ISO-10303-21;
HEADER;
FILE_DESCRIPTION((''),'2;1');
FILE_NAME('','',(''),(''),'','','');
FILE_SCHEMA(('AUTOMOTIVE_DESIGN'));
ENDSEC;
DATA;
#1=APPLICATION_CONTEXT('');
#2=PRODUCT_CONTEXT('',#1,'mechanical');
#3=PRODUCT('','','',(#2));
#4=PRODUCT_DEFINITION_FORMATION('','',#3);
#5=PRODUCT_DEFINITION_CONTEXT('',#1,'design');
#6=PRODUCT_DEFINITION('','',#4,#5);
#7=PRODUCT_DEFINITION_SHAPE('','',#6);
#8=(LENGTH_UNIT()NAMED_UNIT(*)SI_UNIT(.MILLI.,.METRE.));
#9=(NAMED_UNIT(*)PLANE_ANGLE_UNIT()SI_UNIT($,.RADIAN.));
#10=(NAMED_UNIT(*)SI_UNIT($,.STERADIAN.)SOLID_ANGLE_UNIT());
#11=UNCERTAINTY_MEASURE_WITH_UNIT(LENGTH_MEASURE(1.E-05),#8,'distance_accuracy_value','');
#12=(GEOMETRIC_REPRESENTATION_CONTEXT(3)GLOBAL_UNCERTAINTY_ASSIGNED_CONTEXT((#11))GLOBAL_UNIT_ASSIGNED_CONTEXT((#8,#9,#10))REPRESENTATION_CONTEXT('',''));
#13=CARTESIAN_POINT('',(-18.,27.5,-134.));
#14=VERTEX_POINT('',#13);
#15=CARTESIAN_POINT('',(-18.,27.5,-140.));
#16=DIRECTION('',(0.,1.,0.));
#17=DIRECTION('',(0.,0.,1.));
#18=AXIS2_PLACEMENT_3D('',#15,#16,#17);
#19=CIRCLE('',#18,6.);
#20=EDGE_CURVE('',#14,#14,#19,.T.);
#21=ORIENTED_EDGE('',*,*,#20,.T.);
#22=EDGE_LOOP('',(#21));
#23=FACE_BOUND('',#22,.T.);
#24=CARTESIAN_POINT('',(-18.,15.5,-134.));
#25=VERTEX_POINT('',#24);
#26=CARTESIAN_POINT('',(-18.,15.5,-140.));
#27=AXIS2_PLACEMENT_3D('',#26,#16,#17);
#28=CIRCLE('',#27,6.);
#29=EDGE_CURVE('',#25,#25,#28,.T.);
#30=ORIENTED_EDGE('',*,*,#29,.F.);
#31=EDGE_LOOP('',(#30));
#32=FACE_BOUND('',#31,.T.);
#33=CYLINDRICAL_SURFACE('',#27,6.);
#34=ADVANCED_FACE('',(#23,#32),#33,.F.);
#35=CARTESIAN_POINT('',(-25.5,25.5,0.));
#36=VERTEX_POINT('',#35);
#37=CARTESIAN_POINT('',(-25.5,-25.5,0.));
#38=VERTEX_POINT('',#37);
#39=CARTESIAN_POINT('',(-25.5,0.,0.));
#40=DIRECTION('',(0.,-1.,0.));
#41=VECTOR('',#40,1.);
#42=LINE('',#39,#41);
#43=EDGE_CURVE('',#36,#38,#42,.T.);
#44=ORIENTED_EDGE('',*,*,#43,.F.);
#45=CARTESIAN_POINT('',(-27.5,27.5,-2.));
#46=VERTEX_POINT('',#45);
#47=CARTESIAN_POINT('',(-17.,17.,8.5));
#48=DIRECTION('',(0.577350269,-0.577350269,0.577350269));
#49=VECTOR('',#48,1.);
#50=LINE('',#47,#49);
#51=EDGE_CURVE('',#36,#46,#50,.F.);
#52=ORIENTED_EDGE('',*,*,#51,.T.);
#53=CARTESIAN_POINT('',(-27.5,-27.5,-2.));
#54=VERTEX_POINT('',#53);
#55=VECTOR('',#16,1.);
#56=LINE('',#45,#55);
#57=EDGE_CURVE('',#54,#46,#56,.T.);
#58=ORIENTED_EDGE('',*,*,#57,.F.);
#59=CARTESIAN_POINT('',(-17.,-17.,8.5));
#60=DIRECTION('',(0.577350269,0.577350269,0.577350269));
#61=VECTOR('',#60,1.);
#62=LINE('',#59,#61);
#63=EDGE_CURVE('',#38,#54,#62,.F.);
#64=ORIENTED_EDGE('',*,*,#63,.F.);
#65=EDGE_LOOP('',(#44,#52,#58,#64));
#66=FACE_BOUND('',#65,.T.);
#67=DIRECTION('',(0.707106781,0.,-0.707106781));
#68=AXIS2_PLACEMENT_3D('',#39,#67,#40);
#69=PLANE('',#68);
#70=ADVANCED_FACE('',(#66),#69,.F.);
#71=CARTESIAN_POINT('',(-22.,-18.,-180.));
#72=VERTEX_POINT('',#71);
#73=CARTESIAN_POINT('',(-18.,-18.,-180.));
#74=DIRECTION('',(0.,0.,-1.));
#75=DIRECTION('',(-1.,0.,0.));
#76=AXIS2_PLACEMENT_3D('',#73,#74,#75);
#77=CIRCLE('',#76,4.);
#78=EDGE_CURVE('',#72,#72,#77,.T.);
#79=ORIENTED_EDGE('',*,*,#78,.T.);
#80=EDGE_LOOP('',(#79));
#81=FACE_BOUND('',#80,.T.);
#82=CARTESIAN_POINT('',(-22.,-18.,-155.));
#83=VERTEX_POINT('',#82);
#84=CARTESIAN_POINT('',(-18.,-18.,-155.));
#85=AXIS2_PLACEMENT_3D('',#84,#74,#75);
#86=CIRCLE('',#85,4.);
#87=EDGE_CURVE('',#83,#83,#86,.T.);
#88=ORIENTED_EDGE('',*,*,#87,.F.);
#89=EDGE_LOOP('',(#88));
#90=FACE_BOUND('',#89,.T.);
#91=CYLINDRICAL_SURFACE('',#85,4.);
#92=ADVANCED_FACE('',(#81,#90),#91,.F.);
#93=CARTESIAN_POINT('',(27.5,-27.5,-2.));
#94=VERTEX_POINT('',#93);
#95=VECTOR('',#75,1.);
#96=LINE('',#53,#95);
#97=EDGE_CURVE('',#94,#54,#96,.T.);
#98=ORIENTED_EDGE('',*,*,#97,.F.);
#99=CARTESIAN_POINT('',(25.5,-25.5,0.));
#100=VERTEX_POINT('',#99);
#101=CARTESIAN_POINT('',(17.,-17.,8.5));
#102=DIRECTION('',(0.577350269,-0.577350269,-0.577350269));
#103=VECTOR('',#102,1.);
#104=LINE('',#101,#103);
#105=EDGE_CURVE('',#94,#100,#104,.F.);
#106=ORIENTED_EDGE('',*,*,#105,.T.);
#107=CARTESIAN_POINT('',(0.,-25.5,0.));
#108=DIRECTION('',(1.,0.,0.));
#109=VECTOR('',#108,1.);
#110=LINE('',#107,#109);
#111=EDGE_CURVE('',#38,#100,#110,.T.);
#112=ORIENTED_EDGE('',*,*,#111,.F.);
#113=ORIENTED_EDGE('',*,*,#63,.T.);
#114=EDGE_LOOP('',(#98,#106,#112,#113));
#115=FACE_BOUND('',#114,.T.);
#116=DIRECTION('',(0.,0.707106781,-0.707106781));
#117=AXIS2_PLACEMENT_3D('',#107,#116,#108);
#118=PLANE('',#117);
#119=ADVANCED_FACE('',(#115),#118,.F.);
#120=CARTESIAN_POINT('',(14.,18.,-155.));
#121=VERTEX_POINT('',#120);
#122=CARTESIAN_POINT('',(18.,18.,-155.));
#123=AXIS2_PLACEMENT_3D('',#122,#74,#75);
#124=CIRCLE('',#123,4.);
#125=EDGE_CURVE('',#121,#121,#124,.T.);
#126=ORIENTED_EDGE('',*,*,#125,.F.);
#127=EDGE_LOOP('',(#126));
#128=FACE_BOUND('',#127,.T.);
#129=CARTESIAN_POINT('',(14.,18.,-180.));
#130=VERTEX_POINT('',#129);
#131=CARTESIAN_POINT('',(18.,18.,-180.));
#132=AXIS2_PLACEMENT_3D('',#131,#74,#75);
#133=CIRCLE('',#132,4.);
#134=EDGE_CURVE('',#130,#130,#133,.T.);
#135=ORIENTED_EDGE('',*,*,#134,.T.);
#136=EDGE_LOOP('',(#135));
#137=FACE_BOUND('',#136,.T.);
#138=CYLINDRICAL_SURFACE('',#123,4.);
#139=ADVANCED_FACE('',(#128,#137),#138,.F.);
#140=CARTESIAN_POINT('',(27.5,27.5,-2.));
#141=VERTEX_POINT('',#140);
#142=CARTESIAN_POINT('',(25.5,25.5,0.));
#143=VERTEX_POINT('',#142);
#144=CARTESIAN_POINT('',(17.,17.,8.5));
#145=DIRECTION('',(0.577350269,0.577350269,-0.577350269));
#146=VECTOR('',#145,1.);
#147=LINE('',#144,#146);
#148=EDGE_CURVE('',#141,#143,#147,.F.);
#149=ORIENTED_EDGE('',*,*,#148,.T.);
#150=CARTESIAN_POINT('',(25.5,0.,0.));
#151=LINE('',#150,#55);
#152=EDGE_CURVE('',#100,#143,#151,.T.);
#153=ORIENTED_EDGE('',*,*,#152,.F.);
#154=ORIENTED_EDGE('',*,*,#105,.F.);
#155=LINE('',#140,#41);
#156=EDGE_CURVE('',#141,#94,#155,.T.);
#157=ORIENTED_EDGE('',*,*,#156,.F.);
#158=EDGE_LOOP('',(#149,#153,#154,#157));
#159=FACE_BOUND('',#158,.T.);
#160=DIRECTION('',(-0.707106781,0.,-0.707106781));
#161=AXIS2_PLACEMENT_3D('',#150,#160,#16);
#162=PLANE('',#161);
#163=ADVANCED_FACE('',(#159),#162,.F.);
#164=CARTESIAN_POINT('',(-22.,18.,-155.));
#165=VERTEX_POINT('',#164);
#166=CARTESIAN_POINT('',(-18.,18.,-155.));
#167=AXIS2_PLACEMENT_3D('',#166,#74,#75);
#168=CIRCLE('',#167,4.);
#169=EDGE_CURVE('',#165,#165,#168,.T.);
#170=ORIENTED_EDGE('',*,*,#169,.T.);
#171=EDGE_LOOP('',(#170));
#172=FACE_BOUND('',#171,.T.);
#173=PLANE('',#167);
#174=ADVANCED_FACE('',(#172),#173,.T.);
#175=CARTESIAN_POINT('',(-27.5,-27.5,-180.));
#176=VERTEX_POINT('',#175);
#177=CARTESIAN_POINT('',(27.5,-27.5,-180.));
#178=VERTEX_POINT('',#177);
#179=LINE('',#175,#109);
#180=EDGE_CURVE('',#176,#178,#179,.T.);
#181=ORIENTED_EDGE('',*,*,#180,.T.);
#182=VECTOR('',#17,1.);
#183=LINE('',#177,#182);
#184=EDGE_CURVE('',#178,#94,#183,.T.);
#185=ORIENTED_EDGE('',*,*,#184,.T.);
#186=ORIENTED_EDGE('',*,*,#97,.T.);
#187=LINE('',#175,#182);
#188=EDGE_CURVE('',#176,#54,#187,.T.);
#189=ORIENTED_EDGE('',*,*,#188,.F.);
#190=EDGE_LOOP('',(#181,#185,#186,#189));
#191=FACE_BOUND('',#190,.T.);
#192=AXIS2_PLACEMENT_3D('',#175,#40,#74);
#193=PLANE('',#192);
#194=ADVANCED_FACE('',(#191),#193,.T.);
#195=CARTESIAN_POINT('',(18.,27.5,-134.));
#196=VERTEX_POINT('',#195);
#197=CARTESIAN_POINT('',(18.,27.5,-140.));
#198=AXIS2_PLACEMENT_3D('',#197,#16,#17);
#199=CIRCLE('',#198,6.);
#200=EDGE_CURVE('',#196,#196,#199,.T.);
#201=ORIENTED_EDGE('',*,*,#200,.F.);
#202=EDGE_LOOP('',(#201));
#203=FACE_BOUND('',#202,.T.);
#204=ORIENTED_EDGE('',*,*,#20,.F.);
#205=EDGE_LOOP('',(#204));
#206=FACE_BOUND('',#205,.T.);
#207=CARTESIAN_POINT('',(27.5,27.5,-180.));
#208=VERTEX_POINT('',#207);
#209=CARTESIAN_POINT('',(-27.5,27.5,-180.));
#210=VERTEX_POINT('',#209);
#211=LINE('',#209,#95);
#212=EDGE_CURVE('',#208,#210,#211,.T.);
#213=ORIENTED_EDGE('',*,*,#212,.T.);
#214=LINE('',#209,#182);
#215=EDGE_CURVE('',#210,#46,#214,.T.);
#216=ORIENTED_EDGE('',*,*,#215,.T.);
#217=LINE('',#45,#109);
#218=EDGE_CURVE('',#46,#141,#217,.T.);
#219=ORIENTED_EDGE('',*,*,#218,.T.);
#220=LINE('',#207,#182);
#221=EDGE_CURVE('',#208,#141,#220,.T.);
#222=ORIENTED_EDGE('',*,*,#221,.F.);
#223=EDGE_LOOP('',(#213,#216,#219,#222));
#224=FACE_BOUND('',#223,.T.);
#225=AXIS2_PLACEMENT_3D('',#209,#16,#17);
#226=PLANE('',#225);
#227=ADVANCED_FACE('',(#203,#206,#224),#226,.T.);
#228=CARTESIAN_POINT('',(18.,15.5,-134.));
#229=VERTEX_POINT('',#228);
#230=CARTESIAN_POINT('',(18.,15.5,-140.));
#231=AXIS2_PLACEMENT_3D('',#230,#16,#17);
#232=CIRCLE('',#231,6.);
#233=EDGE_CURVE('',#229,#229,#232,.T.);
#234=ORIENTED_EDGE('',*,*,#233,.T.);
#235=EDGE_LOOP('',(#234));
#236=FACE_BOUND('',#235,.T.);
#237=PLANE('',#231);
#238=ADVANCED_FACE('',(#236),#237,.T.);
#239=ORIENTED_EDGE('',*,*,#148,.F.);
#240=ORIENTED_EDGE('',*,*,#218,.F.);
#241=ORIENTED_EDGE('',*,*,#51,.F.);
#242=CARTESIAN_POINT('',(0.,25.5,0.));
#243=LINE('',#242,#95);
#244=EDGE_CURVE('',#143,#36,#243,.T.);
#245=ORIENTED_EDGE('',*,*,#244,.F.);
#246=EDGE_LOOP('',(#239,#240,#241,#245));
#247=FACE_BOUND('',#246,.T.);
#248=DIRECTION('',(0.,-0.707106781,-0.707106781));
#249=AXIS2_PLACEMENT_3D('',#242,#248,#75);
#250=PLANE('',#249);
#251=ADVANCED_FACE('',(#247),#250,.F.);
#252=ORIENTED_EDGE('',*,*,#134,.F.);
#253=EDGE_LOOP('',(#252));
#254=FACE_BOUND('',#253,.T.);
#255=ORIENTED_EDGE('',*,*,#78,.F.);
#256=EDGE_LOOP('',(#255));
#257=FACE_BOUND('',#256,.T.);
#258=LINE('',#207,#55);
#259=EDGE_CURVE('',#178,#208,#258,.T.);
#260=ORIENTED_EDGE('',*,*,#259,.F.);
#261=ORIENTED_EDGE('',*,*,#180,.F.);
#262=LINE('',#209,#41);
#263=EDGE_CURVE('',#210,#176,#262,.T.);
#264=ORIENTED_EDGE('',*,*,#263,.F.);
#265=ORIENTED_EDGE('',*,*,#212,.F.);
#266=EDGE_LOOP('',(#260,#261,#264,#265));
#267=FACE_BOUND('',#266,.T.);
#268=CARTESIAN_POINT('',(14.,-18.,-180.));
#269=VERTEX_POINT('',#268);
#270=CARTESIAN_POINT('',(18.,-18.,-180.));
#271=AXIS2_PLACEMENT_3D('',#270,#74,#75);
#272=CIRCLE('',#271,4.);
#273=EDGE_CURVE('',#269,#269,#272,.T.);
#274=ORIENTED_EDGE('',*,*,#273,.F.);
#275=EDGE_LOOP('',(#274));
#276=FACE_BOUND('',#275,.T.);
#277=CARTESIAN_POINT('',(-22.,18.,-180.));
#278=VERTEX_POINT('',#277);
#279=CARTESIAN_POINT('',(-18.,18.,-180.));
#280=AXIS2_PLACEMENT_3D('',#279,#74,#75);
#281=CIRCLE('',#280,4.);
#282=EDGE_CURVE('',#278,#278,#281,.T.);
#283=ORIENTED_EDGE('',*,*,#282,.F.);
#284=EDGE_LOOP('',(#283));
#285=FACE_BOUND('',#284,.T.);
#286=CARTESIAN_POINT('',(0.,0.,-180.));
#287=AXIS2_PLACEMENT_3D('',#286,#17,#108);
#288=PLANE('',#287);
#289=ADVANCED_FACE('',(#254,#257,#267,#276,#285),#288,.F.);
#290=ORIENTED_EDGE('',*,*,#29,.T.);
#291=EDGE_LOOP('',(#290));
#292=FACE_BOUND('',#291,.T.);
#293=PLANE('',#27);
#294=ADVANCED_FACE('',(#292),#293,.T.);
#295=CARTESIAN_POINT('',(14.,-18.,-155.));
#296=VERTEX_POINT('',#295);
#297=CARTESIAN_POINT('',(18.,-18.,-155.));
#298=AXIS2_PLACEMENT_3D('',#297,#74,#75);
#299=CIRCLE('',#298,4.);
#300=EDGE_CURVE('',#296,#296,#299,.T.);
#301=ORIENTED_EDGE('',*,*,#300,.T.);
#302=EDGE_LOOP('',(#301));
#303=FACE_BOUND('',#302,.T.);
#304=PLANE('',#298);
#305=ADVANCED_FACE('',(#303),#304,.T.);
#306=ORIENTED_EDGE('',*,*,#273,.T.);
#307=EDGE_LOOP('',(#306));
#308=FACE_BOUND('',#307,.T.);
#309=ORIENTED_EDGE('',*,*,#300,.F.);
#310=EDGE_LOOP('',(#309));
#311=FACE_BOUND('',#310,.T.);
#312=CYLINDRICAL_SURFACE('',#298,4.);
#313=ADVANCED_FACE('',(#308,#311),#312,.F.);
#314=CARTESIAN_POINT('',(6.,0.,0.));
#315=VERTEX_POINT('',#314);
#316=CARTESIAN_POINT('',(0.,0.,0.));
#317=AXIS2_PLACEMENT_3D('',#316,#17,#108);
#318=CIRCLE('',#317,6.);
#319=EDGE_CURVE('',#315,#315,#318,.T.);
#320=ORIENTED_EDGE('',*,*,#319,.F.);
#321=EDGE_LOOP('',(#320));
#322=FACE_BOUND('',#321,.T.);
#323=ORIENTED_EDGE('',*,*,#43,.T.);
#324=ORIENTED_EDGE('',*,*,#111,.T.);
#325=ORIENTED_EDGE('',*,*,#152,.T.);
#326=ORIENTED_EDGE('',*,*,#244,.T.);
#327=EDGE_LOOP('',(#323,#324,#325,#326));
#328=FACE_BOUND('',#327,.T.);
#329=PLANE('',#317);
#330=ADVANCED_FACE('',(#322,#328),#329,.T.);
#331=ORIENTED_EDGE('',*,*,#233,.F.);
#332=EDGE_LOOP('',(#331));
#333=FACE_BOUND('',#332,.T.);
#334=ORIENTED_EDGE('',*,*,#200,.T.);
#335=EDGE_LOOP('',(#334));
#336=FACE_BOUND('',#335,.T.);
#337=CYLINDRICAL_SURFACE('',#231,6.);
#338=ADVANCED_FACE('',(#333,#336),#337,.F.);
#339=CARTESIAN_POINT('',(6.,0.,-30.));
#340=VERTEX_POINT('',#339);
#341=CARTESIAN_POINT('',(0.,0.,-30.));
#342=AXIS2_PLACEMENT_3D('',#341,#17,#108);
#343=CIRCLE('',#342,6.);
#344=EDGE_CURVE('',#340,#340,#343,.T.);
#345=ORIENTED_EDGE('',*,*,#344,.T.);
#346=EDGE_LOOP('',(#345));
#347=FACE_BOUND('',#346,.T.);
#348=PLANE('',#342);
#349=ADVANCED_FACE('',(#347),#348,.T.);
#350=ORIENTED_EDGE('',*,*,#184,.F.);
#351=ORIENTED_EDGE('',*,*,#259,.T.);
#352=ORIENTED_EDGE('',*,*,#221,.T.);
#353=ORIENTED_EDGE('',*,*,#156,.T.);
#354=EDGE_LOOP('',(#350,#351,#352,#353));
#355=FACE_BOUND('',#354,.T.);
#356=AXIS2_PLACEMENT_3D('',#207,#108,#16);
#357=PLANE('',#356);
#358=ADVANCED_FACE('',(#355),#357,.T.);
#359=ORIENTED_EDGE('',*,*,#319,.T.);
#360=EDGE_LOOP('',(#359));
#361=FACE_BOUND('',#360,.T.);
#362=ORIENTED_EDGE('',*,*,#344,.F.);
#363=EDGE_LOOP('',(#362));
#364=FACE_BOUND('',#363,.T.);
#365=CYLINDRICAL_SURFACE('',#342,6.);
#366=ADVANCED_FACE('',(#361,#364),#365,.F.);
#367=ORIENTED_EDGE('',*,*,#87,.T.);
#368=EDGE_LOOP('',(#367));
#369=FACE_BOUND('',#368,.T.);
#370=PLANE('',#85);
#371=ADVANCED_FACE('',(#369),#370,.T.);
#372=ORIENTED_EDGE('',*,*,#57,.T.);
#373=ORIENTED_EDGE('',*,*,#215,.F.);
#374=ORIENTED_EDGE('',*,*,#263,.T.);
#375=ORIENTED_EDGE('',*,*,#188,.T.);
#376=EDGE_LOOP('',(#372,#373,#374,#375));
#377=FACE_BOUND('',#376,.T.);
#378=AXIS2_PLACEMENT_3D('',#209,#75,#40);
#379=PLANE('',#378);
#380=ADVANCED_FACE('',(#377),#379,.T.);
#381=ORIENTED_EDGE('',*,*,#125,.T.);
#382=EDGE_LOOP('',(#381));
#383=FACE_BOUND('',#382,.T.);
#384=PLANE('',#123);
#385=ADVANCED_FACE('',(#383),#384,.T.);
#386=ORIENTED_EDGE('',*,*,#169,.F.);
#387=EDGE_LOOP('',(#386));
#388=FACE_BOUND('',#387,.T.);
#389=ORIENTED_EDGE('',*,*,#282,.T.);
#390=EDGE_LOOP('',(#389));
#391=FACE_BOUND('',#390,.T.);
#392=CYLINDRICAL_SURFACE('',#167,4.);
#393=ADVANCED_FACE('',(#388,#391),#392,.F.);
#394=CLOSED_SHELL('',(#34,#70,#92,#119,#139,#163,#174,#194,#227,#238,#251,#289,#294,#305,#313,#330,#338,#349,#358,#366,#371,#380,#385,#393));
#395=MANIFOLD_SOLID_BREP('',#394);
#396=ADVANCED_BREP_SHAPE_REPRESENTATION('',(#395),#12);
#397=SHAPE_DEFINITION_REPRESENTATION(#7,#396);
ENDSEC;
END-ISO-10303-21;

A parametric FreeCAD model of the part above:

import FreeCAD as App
import Part
import Sketcher
from FreeCAD import Vector
Q = App.Units.Quantity


def edges_at(feature, points):
    """Names of the edges that pass closest to the given points."""
    edges = feature.Shape.Edges
    near = lambda p: min(range(len(edges)), key=lambda i: edges[i].distToShape(Part.Vertex(*p))[0])
    return sorted({f"Edge{near(p) + 1}" for p in points})


def add_polygon(sketch, points):
    """Adds a closed chain of lines whose ends are joined by coincident constraints."""
    first, n = sketch.GeometryCount, len(points)
    for a, b in zip(points, points[1:] + points[:1]):
        sketch.addGeometry(Part.LineSegment(App.Vector(*a, 0), App.Vector(*b, 0)), False)
    for i in range(n):
        sketch.addConstraint(Sketcher.Constraint("Coincident", first + i, 2, first + (i + 1) % n, 1))

doc = App.newDocument("Part")
params = doc.addObject("Spreadsheet::Sheet", "Params")
for row, (alias, value) in enumerate([
    ("sketch1_width", "55 mm"),
    ("pad1_length", "180 mm"),
    ("sketch2_diameter", "12 mm"),
    ("pocket1_length", "30 mm"),
    ("sketch3_diameter", "8 mm"),
    ("pocket2_length", "25 mm"),
    ("sketch4_diameter", "12 mm"),
    ("pocket3_length", "12 mm"),
    ("chamfer_size", "2 mm"),
], start=1):
    params.set(f"A{row}", alias)
    params.set(f"B{row}", "=" + value)
    params.setAlias(f"B{row}", alias)

body = doc.addObject("PartDesign::Body", "Body")

# Sketch on XY plane
sketch1 = body.newObject("Sketcher::SketchObject", "Sketch")
sketch1.AttachmentSupport = (doc.getObject("XY_Plane"), [""])
sketch1.MapMode = "FlatFace"
add_polygon(sketch1, [(-28, 28), (-28, -28), (28, -28), (28, 28)])  # lines 0-3
sketch1.addConstraint(Sketcher.Constraint("Vertical", 0))
sketch1.addConstraint(Sketcher.Constraint("Horizontal", 1))
sketch1.addConstraint(Sketcher.Constraint("Vertical", 2))
sketch1.addConstraint(Sketcher.Constraint("Horizontal", 3))
sketch1.addConstraint(Sketcher.Constraint("Symmetric", 0, 2, 2, 2, -1, 1))
sketch1.addConstraint(Sketcher.Constraint("Equal", 3, 0))
sketch1.addConstraint(Sketcher.Constraint("DistanceX", 1, 1, 1, 2, Q("55 mm")))
sketch1.setExpression("Constraints[10]", "Params.sketch1_width")
pad1 = body.newObject("PartDesign::Pad", "Pad")
pad1.Profile = sketch1
pad1.setExpression("Length", "Params.pad1_length")
pad1.Reversed = True

# Sketch on XY plane
sketch2 = body.newObject("Sketcher::SketchObject", "Sketch001")
sketch2.AttachmentSupport = (doc.getObject("XY_Plane"), [""])
sketch2.MapMode = "FlatFace"
sketch2.addGeometry(Part.Circle(Vector(0, 0, 0), Vector(0, 0, 1), 6), False)
sketch2.addConstraint(Sketcher.Constraint("Coincident", 0, 3, -1, 1))
sketch2.addConstraint(Sketcher.Constraint("Diameter", 0, Q("12 mm")))
sketch2.setExpression("Constraints[1]", "Params.sketch2_diameter")
pocket1 = body.newObject("PartDesign::Pocket", "Pocket")
pocket1.Profile = sketch2
pocket1.setExpression("Length", "Params.pocket1_length")

# Sketch on XY plane
sketch3 = body.newObject("Sketcher::SketchObject", "Sketch002")
sketch3.AttachmentSupport = (doc.getObject("XY_Plane"), [""])
sketch3.MapMode = "FlatFace"
sketch3.AttachmentOffset = App.Placement(Vector(0, 0, -180), App.Rotation())
sketch3.addGeometry(Part.Circle(Vector(-18, 18, 0), Vector(0, 0, 1), 4), False)
sketch3.addGeometry(Part.Circle(Vector(18, 18, 0), Vector(0, 0, 1), 4), False)
sketch3.addGeometry(Part.Circle(Vector(18, -18, 0), Vector(0, 0, 1), 4), False)
sketch3.addGeometry(Part.Circle(Vector(-18, -18, 0), Vector(0, 0, 1), 4), False)
sketch3.addConstraint(Sketcher.Constraint("Equal", 0, 1))
sketch3.addConstraint(Sketcher.Constraint("Equal", 1, 2))
sketch3.addConstraint(Sketcher.Constraint("Equal", 2, 3))
sketch3.addConstraint(Sketcher.Constraint("Symmetric", 0, 3, 2, 3, -1, 1))
sketch3.addConstraint(Sketcher.Constraint("Symmetric", 1, 3, 3, 3, -1, 1))
sketch3.addConstraint(Sketcher.Constraint("Symmetric", 0, 3, 1, 3, -2))
sketch3.addConstraint(Sketcher.Constraint("Diameter", 0, Q("8 mm")))
sketch3.addConstraint(Sketcher.Constraint("DistanceX", 0, 3, -1, 1, Q("18 mm")))
sketch3.addConstraint(Sketcher.Constraint("DistanceY", -1, 1, 0, 3, Q("18 mm")))
sketch3.setExpression("Constraints[6]", "Params.sketch3_diameter")
pocket2 = body.newObject("PartDesign::Pocket", "Pocket001")
pocket2.Profile = sketch3
pocket2.setExpression("Length", "Params.pocket2_length")
pocket2.Reversed = True

# Sketch on XZ plane
sketch4 = body.newObject("Sketcher::SketchObject", "Sketch003")
sketch4.AttachmentSupport = (doc.getObject("XZ_Plane"), [""])
sketch4.MapMode = "FlatFace"
sketch4.AttachmentOffset = App.Placement(Vector(0, 0, -27.5), App.Rotation())
sketch4.addGeometry(Part.Circle(Vector(-18, -140, 0), Vector(0, 0, 1), 6), False)
sketch4.addGeometry(Part.Circle(Vector(18, -140, 0), Vector(0, 0, 1), 6), False)
sketch4.addConstraint(Sketcher.Constraint("Equal", 0, 1))
sketch4.addConstraint(Sketcher.Constraint("Symmetric", 0, 3, 1, 3, -2))
sketch4.addConstraint(Sketcher.Constraint("Diameter", 0, Q("12 mm")))
sketch4.addConstraint(Sketcher.Constraint("DistanceX", 0, 3, -1, 1, Q("18 mm")))
sketch4.addConstraint(Sketcher.Constraint("DistanceY", 0, 3, -1, 1, Q("140 mm")))
sketch4.setExpression("Constraints[2]", "Params.sketch4_diameter")
pocket3 = body.newObject("PartDesign::Pocket", "Pocket002")
pocket3.Profile = sketch4
pocket3.setExpression("Length", "Params.pocket3_length")
pocket3.Reversed = True
doc.recompute()

chamfer = body.newObject("PartDesign::Chamfer", "Chamfer")
chamfer.Base = (pocket3, edges_at(pocket3, [
    (0, -27.5, 0),
    (-27.5, 0, 0),
    (0, 27.5, 0),
    (27.5, 0, 0),
]))
chamfer.setExpression("Size", "Params.chamfer_size")

doc.recompute()
